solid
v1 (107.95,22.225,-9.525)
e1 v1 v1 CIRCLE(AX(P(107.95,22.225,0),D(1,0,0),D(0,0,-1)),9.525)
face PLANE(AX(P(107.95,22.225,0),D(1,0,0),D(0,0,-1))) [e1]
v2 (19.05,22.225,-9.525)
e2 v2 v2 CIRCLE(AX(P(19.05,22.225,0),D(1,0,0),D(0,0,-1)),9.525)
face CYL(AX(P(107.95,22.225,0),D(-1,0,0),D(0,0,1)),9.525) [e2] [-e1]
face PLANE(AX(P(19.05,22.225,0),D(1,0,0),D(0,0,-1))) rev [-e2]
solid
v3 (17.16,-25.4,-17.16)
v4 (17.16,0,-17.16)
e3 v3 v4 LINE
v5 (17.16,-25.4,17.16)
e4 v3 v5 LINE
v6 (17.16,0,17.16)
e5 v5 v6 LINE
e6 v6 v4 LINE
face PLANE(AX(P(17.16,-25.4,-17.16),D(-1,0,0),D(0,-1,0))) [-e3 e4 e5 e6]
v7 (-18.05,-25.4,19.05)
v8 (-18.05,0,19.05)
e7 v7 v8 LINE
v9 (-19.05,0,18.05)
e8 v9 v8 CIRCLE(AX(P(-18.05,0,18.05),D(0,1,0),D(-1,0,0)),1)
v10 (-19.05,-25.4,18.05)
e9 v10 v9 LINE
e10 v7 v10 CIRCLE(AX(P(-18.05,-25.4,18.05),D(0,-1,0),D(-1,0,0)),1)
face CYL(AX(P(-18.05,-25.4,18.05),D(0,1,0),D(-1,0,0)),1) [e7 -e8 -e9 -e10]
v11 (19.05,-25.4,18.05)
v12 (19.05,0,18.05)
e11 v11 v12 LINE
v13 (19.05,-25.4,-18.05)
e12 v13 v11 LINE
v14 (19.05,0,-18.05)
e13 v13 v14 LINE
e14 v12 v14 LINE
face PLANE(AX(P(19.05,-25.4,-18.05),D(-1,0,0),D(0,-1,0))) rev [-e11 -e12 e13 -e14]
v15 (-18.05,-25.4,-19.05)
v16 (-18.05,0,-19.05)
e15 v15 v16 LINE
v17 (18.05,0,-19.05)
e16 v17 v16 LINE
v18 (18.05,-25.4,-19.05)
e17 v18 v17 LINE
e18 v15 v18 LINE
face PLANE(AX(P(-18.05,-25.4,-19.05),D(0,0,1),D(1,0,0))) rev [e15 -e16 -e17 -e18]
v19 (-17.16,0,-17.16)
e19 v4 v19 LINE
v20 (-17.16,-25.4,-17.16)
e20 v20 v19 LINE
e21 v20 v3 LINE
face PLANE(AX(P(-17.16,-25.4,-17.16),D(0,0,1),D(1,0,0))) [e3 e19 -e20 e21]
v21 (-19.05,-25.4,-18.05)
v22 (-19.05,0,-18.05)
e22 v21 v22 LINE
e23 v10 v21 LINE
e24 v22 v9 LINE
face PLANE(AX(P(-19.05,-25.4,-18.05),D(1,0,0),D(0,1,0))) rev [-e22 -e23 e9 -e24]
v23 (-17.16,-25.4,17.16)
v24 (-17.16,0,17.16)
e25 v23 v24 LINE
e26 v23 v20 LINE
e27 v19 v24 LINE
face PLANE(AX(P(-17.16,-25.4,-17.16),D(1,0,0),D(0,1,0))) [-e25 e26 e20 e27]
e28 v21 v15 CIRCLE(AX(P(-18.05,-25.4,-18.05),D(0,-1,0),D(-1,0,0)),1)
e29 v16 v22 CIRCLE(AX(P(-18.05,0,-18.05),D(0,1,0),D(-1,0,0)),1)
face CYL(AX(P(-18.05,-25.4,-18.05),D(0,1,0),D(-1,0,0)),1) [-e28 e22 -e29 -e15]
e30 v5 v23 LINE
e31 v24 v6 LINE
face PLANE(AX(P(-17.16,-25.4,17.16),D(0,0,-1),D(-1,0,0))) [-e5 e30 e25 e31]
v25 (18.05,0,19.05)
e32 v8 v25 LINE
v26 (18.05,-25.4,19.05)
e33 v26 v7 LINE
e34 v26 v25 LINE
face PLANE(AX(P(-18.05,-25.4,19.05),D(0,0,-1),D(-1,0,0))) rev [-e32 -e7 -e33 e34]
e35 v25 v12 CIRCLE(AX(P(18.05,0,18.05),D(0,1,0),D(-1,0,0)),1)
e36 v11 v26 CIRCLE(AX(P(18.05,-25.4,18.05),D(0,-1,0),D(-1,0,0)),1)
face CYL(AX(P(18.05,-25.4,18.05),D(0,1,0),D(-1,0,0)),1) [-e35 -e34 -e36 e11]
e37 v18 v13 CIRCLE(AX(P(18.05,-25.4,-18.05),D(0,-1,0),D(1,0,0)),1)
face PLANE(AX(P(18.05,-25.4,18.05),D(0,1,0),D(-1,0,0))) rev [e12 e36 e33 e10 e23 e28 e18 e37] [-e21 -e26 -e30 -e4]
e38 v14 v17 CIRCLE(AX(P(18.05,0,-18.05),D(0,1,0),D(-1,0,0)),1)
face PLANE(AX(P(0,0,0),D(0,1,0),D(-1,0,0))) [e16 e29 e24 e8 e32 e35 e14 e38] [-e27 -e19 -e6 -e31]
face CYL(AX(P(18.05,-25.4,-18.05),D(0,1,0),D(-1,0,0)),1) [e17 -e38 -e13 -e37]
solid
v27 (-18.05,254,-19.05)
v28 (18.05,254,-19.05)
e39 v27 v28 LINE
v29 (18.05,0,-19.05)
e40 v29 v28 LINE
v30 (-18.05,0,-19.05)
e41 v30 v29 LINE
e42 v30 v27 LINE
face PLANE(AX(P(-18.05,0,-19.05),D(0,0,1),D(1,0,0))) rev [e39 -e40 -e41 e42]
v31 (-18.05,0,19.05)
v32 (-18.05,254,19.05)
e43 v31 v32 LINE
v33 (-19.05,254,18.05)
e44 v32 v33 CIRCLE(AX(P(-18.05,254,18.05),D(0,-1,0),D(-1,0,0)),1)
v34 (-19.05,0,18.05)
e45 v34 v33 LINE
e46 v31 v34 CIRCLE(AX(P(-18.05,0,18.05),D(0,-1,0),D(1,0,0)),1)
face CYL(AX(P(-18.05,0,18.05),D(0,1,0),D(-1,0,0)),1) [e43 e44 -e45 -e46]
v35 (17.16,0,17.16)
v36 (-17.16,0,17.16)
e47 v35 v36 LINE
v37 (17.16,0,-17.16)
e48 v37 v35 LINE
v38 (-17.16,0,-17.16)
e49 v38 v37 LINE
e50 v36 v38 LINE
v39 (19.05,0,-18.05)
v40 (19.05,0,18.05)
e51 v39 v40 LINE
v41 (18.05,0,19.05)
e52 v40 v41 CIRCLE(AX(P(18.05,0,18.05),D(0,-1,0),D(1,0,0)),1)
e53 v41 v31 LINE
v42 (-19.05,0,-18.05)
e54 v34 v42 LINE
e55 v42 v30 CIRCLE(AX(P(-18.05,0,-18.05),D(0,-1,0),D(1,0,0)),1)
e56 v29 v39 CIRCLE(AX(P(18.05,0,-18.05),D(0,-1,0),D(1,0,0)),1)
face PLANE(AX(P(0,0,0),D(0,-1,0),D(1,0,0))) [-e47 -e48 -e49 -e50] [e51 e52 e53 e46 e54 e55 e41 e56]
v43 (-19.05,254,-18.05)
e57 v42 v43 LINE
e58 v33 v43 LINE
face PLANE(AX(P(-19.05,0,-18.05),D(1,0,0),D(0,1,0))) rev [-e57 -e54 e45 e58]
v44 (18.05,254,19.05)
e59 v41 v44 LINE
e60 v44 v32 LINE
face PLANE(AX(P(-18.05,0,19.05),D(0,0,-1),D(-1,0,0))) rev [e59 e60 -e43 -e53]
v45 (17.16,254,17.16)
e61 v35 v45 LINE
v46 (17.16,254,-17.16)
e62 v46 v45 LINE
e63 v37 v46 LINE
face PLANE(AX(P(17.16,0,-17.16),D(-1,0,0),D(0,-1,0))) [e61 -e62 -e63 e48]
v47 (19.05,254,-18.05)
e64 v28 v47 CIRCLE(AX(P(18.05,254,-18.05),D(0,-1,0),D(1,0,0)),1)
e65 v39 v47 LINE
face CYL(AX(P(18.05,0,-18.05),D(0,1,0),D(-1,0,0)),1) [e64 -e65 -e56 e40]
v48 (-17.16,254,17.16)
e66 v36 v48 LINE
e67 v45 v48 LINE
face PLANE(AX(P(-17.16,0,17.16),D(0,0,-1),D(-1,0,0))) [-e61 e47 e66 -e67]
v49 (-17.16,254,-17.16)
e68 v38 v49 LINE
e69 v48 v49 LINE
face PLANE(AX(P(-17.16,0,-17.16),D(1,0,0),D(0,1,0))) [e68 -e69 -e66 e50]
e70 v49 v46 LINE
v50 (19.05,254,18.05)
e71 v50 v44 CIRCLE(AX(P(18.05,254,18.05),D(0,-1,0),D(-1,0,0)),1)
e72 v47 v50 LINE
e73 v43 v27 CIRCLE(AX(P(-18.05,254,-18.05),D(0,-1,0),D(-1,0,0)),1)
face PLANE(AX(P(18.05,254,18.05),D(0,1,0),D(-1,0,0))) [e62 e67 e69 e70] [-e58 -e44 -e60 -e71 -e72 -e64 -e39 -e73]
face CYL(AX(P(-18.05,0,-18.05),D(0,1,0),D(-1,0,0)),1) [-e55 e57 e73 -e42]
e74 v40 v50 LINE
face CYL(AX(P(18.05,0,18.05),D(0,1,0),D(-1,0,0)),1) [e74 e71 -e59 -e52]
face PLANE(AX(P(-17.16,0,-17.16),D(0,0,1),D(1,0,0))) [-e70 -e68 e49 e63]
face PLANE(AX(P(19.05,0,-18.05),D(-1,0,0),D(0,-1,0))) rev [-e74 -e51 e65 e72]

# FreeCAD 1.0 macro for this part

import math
import FreeCAD as App
import Part
import Sketcher

V = App.Vector
Q = App.Units.Quantity

doc = App.newDocument("Part")
body = doc.addObject("PartDesign::Body", "Body")

sketch1 = body.newObject("Sketcher::SketchObject", "Sketch")
sketch1.AttachmentSupport = (doc.getObject("XZ_Plane"), [""])
sketch1.MapMode = "FlatFace"
sketch1.AttachmentOffset = App.Placement(V(0, 0, -10 * 25.4), App.Rotation())
sketch1.addGeometry([
    Part.LineSegment(V(-18.05, -19.05, 0), V(18.05, -19.05, 0)),
    Part.ArcOfCircle(Part.Circle(V(18.05, -18.05, 0), V(0, 0, 1), 1), math.radians(-90), math.radians(0)),
    Part.LineSegment(V(19.05, -18.05, 0), V(19.05, 18.05, 0)),
    Part.ArcOfCircle(Part.Circle(V(18.05, 18.05, 0), V(0, 0, 1), 1), math.radians(0), math.radians(90)),
    Part.LineSegment(V(18.05, 19.05, 0), V(-18.05, 19.05, 0)),
    Part.ArcOfCircle(Part.Circle(V(-18.05, 18.05, 0), V(0, 0, 1), 1), math.radians(90), math.radians(180)),
    Part.LineSegment(V(-19.05, 18.05, 0), V(-19.05, -18.05, 0)),
    Part.ArcOfCircle(Part.Circle(V(-18.05, -18.05, 0), V(0, 0, 1), 1), math.radians(-180), math.radians(-90)),
    Part.LineSegment(V(17.16, -17.16, 0), V(-17.16, -17.16, 0)),
    Part.LineSegment(V(-17.16, -17.16, 0), V(-17.16, 17.16, 0)),
    Part.LineSegment(V(-17.16, 17.16, 0), V(17.16, 17.16, 0)),
    Part.LineSegment(V(17.16, 17.16, 0), V(17.16, -17.16, 0)),
], False)
sketch1.addConstraint([
    Sketcher.Constraint("Tangent", 0, 2, 1, 1),
    Sketcher.Constraint("Tangent", 1, 2, 2, 1),
    Sketcher.Constraint("Tangent", 2, 2, 3, 1),
    Sketcher.Constraint("Tangent", 3, 2, 4, 1),
    Sketcher.Constraint("Tangent", 4, 2, 5, 1),
    Sketcher.Constraint("Tangent", 5, 2, 6, 1),
    Sketcher.Constraint("Tangent", 6, 2, 7, 1),
    Sketcher.Constraint("Tangent", 7, 2, 0, 1),
    Sketcher.Constraint("Coincident", 8, 2, 9, 1),
    Sketcher.Constraint("Coincident", 9, 2, 10, 1),
    Sketcher.Constraint("Coincident", 10, 2, 11, 1),
    Sketcher.Constraint("Coincident", 11, 2, 8, 1),
    Sketcher.Constraint("Horizontal", 0),
    Sketcher.Constraint("Vertical", 2),
    Sketcher.Constraint("Horizontal", 4),
    Sketcher.Constraint("Vertical", 6),
    Sketcher.Constraint("Horizontal", 8),
    Sketcher.Constraint("Vertical", 9),
    Sketcher.Constraint("Horizontal", 10),
    Sketcher.Constraint("Vertical", 11),
    Sketcher.Constraint("Equal", 1, 3),
    Sketcher.Constraint("Equal", 3, 5),
    Sketcher.Constraint("Equal", 5, 7),
    Sketcher.Constraint("Symmetric", 1, 3, 5, 3, -1, 1),
    Sketcher.Constraint("Symmetric", 8, 2, 10, 2, -1, 1),
    Sketcher.Constraint("Equal", 4, 2),
    Sketcher.Constraint("Equal", 10, 9),
    Sketcher.Constraint("DistanceY", 0, 2, -1, 1, Q("0.75 in")),
    Sketcher.Constraint("Radius", 1, 1.0),
    Sketcher.Constraint("DistanceX", 8, 2, 8, 1, 34.32),
])
pad1 = body.newObject("PartDesign::Pad", "Pad")
pad1.Profile = sketch1
pad1.Length = Q("10 in")
body2 = doc.addObject("PartDesign::Body", "Body001")

sketch2 = body2.newObject("Sketcher::SketchObject", "Sketch001")
sketch2.AttachmentSupport = (doc.getObject("XZ_Plane001"), [""])
sketch2.MapMode = "FlatFace"
sketch2.addGeometry([
    Part.LineSegment(V(-18.05, -19.05, 0), V(18.05, -19.05, 0)),
    Part.ArcOfCircle(Part.Circle(V(18.05, -18.05, 0), V(0, 0, 1), 1), math.radians(-90), math.radians(0)),
    Part.LineSegment(V(19.05, -18.05, 0), V(19.05, 18.05, 0)),
    Part.ArcOfCircle(Part.Circle(V(18.05, 18.05, 0), V(0, 0, 1), 1), math.radians(0), math.radians(90)),
    Part.LineSegment(V(18.05, 19.05, 0), V(-18.05, 19.05, 0)),
    Part.ArcOfCircle(Part.Circle(V(-18.05, 18.05, 0), V(0, 0, 1), 1), math.radians(90), math.radians(180)),
    Part.LineSegment(V(-19.05, 18.05, 0), V(-19.05, -18.05, 0)),
    Part.ArcOfCircle(Part.Circle(V(-18.05, -18.05, 0), V(0, 0, 1), 1), math.radians(-180), math.radians(-90)),
    Part.LineSegment(V(17.16, -17.16, 0), V(-17.16, -17.16, 0)),
    Part.LineSegment(V(-17.16, -17.16, 0), V(-17.16, 17.16, 0)),
    Part.LineSegment(V(-17.16, 17.16, 0), V(17.16, 17.16, 0)),
    Part.LineSegment(V(17.16, 17.16, 0), V(17.16, -17.16, 0)),
], False)
sketch2.addConstraint([
    Sketcher.Constraint("Tangent", 0, 2, 1, 1),
    Sketcher.Constraint("Tangent", 1, 2, 2, 1),
    Sketcher.Constraint("Tangent", 2, 2, 3, 1),
    Sketcher.Constraint("Tangent", 3, 2, 4, 1),
    Sketcher.Constraint("Tangent", 4, 2, 5, 1),
    Sketcher.Constraint("Tangent", 5, 2, 6, 1),
    Sketcher.Constraint("Tangent", 6, 2, 7, 1),
    Sketcher.Constraint("Tangent", 7, 2, 0, 1),
    Sketcher.Constraint("Coincident", 8, 2, 9, 1),
    Sketcher.Constraint("Coincident", 9, 2, 10, 1),
    Sketcher.Constraint("Coincident", 10, 2, 11, 1),
    Sketcher.Constraint("Coincident", 11, 2, 8, 1),
    Sketcher.Constraint("Horizontal", 0),
    Sketcher.Constraint("Vertical", 2),
    Sketcher.Constraint("Horizontal", 4),
    Sketcher.Constraint("Vertical", 6),
    Sketcher.Constraint("Horizontal", 8),
    Sketcher.Constraint("Vertical", 9),
    Sketcher.Constraint("Horizontal", 10),
    Sketcher.Constraint("Vertical", 11),
    Sketcher.Constraint("Equal", 1, 3),
    Sketcher.Constraint("Equal", 3, 5),
    Sketcher.Constraint("Equal", 5, 7),
    Sketcher.Constraint("Symmetric", 1, 3, 5, 3, -1, 1),
    Sketcher.Constraint("Symmetric", 8, 2, 10, 2, -1, 1),
    Sketcher.Constraint("Equal", 4, 2),
    Sketcher.Constraint("Equal", 10, 9),
    Sketcher.Constraint("DistanceY", 0, 2, -1, 1, Q("0.75 in")),
    Sketcher.Constraint("Radius", 1, 1.0),
    Sketcher.Constraint("DistanceX", 8, 2, 8, 1, 34.32),
])
pad2 = body2.newObject("PartDesign::Pad", "Pad001")
pad2.Profile = sketch2
pad2.Length = Q("1 in")
body3 = doc.addObject("PartDesign::Body", "Body002")

sketch3 = body3.newObject("Sketcher::SketchObject", "Sketch002")
sketch3.AttachmentSupport = (doc.getObject("YZ_Plane002"), [""])
sketch3.MapMode = "FlatFace"
sketch3.AttachmentOffset = App.Placement(V(0, 0, 0.75 * 25.4), App.Rotation())
sketch3.addGeometry(Part.Circle(V(22.225, 0, 0), V(0, 0, 1), 9.525), False)
sketch3.addConstraint([
    Sketcher.Constraint("PointOnObject", 0, 3, -1),
    Sketcher.Constraint("Diameter", 0, Q("0.75 in")),
    Sketcher.Constraint("DistanceX", -1, 1, 0, 3, Q("0.875 in")),
])
pad3 = body3.newObject("PartDesign::Pad", "Pad002")
pad3.Profile = sketch3
pad3.Length = Q("3.5 in")

doc.recompute()
